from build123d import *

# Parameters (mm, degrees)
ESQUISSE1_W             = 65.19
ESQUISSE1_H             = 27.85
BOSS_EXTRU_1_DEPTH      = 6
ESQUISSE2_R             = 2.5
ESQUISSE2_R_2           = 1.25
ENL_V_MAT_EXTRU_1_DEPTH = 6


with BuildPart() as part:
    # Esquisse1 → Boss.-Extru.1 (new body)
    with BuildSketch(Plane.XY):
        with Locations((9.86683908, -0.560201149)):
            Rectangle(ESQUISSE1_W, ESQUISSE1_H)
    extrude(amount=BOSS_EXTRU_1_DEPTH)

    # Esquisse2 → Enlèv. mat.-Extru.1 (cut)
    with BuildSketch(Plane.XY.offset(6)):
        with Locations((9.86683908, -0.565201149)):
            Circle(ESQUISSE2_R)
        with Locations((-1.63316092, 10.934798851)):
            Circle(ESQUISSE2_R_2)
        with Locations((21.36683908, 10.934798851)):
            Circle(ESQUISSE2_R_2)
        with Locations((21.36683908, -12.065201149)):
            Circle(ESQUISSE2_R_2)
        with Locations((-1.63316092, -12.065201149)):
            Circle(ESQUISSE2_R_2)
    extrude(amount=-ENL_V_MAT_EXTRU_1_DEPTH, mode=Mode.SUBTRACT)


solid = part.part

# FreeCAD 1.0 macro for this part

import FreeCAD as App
import Part
import Sketcher

V = App.Vector

doc = App.newDocument("Part")
body = doc.addObject("PartDesign::Body", "Body")

# Sketch on XY plane
sketch1 = body.newObject("Sketcher::SketchObject", "Sketch")
sketch1.AttachmentSupport = (doc.getObject("XY_Plane"), [""])
sketch1.MapMode = "FlatFace"
sketch1.addGeometry(Part.LineSegment(V(-22.728161, 13.364799, 0), V(-22.728161, -14.485201, 0)), False)
sketch1.addGeometry(Part.LineSegment(V(-22.728161, -14.485201, 0), V(42.461839, -14.485201, 0)), False)
sketch1.addGeometry(Part.LineSegment(V(42.461839, -14.485201, 0), V(42.461839, 13.364799, 0)), False)
sketch1.addGeometry(Part.LineSegment(V(42.461839, 13.364799, 0), V(-22.728161, 13.364799, 0)), False)
sketch1.addConstraint(Sketcher.Constraint("Coincident", 0, 2, 1, 1))
sketch1.addConstraint(Sketcher.Constraint("Coincident", 1, 2, 2, 1))
sketch1.addConstraint(Sketcher.Constraint("Coincident", 2, 2, 3, 1))
sketch1.addConstraint(Sketcher.Constraint("Coincident", 3, 2, 0, 1))
sketch1.addConstraint(Sketcher.Constraint("Vertical", 0))
sketch1.addConstraint(Sketcher.Constraint("Horizontal", 1))
sketch1.addConstraint(Sketcher.Constraint("Vertical", 2))
sketch1.addConstraint(Sketcher.Constraint("Horizontal", 3))
sketch1.addConstraint(Sketcher.Constraint("DistanceX", 1, 1, 1, 2, 65.19))
sketch1.addConstraint(Sketcher.Constraint("DistanceY", 0, 2, 0, 1, 27.85))
sketch1.addConstraint(Sketcher.Constraint("DistanceY", 0, 2, -1, 1, 14.485201))
sketch1.addConstraint(Sketcher.Constraint("DistanceX", 0, 2, -1, 1, 22.728161))
pad1 = body.newObject("PartDesign::Pad", "Pad")
pad1.Profile = sketch1
pad1.Length = 6

# Sketch on XY plane
sketch2 = body.newObject("Sketcher::SketchObject", "Sketch001")
sketch2.AttachmentSupport = (doc.getObject("XY_Plane"), [""])
sketch2.MapMode = "FlatFace"
sketch2.AttachmentOffset = App.Placement(V(0, 0, 6), App.Rotation())
sketch2.addGeometry(Part.Circle(V(9.866839, -0.565201, 0), V(0, 0, 1), 2.5), False)
sketch2.addGeometry(Part.Circle(V(-1.633161, 10.934799, 0), V(0, 0, 1), 1.25), False)
sketch2.addGeometry(Part.Circle(V(21.366839, 10.934799, 0), V(0, 0, 1), 1.25), False)
sketch2.addGeometry(Part.Circle(V(21.366839, -12.065201, 0), V(0, 0, 1), 1.25), False)
sketch2.addGeometry(Part.Circle(V(-1.633161, -12.065201, 0), V(0, 0, 1), 1.25), False)
sketch2.addConstraint(Sketcher.Constraint("Equal", 1, 2))
sketch2.addConstraint(Sketcher.Constraint("Equal", 2, 3))
sketch2.addConstraint(Sketcher.Constraint("Equal", 3, 4))
sketch2.addConstraint(Sketcher.Constraint("Horizontal", 1, 3, 2, 3))
sketch2.addConstraint(Sketcher.Constraint("Horizontal", 3, 3, 4, 3))
sketch2.addConstraint(Sketcher.Constraint("Vertical", 2, 3, 3, 3))
sketch2.addConstraint(Sketcher.Constraint("Vertical", 1, 3, 4, 3))
sketch2.addConstraint(Sketcher.Constraint("Diameter", 0, 5.0))
sketch2.addConstraint(Sketcher.Constraint("Diameter", 1, 2.5))
sketch2.addConstraint(Sketcher.Constraint("DistanceX", 1, 3, 2, 3, 23.0))
sketch2.addConstraint(Sketcher.Constraint("DistanceY", 3, 3, 2, 3, 23.0))
sketch2.addConstraint(Sketcher.Constraint("DistanceX", 1, 3, 0, 3, 11.5))
sketch2.addConstraint(Sketcher.Constraint("DistanceY", 0, 3, 1, 3, 11.5))
sketch2.addConstraint(Sketcher.Constraint("DistanceY", 0, 3, -1, 1, 0.565201))
sketch2.addConstraint(Sketcher.Constraint("DistanceX", -1, 1, 0, 3, 9.866839))
pocket1 = body.newObject("PartDesign::Pocket", "Pocket")
pocket1.Profile = sketch2
pocket1.Length = 6

doc.recompute()
